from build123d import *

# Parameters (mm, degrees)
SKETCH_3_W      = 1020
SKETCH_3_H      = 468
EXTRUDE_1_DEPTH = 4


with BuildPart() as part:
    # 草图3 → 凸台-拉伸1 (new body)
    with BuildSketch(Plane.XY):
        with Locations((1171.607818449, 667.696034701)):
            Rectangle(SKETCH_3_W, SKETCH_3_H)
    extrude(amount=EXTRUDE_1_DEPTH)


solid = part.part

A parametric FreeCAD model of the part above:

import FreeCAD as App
import Part
import Sketcher

V = App.Vector

doc = App.newDocument("Part")
body = doc.addObject("PartDesign::Body", "Body")

# Sketch on XY plane
sketch1 = body.newObject("Sketcher::SketchObject", "Sketch")
sketch1.AttachmentSupport = (doc.getObject("XY_Plane"), [""])
sketch1.MapMode = "FlatFace"
sketch1.addGeometry(Part.LineSegment(V(661.607818, 901.696035, 0), V(661.607818, 433.696035, 0)), False)
sketch1.addGeometry(Part.LineSegment(V(661.607818, 433.696035, 0), V(1681.607818, 433.696035, 0)), False)
sketch1.addGeometry(Part.LineSegment(V(1681.607818, 433.696035, 0), V(1681.607818, 901.696035, 0)), False)
sketch1.addGeometry(Part.LineSegment(V(1681.607818, 901.696035, 0), V(661.607818, 901.696035, 0)), False)
sketch1.addConstraint(Sketcher.Constraint("Coincident", 0, 2, 1, 1))
sketch1.addConstraint(Sketcher.Constraint("Coincident", 1, 2, 2, 1))
sketch1.addConstraint(Sketcher.Constraint("Coincident", 2, 2, 3, 1))
sketch1.addConstraint(Sketcher.Constraint("Coincident", 3, 2, 0, 1))
sketch1.addConstraint(Sketcher.Constraint("Vertical", 0))
sketch1.addConstraint(Sketcher.Constraint("Horizontal", 1))
sketch1.addConstraint(Sketcher.Constraint("Vertical", 2))
sketch1.addConstraint(Sketcher.Constraint("Horizontal", 3))
sketch1.addConstraint(Sketcher.Constraint("DistanceX", 1, 1, 1, 2, 1020.0))
sketch1.addConstraint(Sketcher.Constraint("DistanceY", 0, 2, 0, 1, 468.0))
sketch1.addConstraint(Sketcher.Constraint("DistanceX", -1, 1, 0, 2, 661.607818))
sketch1.addConstraint(Sketcher.Constraint("DistanceY", -1, 1, 0, 2, 433.696035))
pad1 = body.newObject("PartDesign::Pad", "Pad")
pad1.Profile = sketch1
pad1.Length = 4

doc.recompute()
